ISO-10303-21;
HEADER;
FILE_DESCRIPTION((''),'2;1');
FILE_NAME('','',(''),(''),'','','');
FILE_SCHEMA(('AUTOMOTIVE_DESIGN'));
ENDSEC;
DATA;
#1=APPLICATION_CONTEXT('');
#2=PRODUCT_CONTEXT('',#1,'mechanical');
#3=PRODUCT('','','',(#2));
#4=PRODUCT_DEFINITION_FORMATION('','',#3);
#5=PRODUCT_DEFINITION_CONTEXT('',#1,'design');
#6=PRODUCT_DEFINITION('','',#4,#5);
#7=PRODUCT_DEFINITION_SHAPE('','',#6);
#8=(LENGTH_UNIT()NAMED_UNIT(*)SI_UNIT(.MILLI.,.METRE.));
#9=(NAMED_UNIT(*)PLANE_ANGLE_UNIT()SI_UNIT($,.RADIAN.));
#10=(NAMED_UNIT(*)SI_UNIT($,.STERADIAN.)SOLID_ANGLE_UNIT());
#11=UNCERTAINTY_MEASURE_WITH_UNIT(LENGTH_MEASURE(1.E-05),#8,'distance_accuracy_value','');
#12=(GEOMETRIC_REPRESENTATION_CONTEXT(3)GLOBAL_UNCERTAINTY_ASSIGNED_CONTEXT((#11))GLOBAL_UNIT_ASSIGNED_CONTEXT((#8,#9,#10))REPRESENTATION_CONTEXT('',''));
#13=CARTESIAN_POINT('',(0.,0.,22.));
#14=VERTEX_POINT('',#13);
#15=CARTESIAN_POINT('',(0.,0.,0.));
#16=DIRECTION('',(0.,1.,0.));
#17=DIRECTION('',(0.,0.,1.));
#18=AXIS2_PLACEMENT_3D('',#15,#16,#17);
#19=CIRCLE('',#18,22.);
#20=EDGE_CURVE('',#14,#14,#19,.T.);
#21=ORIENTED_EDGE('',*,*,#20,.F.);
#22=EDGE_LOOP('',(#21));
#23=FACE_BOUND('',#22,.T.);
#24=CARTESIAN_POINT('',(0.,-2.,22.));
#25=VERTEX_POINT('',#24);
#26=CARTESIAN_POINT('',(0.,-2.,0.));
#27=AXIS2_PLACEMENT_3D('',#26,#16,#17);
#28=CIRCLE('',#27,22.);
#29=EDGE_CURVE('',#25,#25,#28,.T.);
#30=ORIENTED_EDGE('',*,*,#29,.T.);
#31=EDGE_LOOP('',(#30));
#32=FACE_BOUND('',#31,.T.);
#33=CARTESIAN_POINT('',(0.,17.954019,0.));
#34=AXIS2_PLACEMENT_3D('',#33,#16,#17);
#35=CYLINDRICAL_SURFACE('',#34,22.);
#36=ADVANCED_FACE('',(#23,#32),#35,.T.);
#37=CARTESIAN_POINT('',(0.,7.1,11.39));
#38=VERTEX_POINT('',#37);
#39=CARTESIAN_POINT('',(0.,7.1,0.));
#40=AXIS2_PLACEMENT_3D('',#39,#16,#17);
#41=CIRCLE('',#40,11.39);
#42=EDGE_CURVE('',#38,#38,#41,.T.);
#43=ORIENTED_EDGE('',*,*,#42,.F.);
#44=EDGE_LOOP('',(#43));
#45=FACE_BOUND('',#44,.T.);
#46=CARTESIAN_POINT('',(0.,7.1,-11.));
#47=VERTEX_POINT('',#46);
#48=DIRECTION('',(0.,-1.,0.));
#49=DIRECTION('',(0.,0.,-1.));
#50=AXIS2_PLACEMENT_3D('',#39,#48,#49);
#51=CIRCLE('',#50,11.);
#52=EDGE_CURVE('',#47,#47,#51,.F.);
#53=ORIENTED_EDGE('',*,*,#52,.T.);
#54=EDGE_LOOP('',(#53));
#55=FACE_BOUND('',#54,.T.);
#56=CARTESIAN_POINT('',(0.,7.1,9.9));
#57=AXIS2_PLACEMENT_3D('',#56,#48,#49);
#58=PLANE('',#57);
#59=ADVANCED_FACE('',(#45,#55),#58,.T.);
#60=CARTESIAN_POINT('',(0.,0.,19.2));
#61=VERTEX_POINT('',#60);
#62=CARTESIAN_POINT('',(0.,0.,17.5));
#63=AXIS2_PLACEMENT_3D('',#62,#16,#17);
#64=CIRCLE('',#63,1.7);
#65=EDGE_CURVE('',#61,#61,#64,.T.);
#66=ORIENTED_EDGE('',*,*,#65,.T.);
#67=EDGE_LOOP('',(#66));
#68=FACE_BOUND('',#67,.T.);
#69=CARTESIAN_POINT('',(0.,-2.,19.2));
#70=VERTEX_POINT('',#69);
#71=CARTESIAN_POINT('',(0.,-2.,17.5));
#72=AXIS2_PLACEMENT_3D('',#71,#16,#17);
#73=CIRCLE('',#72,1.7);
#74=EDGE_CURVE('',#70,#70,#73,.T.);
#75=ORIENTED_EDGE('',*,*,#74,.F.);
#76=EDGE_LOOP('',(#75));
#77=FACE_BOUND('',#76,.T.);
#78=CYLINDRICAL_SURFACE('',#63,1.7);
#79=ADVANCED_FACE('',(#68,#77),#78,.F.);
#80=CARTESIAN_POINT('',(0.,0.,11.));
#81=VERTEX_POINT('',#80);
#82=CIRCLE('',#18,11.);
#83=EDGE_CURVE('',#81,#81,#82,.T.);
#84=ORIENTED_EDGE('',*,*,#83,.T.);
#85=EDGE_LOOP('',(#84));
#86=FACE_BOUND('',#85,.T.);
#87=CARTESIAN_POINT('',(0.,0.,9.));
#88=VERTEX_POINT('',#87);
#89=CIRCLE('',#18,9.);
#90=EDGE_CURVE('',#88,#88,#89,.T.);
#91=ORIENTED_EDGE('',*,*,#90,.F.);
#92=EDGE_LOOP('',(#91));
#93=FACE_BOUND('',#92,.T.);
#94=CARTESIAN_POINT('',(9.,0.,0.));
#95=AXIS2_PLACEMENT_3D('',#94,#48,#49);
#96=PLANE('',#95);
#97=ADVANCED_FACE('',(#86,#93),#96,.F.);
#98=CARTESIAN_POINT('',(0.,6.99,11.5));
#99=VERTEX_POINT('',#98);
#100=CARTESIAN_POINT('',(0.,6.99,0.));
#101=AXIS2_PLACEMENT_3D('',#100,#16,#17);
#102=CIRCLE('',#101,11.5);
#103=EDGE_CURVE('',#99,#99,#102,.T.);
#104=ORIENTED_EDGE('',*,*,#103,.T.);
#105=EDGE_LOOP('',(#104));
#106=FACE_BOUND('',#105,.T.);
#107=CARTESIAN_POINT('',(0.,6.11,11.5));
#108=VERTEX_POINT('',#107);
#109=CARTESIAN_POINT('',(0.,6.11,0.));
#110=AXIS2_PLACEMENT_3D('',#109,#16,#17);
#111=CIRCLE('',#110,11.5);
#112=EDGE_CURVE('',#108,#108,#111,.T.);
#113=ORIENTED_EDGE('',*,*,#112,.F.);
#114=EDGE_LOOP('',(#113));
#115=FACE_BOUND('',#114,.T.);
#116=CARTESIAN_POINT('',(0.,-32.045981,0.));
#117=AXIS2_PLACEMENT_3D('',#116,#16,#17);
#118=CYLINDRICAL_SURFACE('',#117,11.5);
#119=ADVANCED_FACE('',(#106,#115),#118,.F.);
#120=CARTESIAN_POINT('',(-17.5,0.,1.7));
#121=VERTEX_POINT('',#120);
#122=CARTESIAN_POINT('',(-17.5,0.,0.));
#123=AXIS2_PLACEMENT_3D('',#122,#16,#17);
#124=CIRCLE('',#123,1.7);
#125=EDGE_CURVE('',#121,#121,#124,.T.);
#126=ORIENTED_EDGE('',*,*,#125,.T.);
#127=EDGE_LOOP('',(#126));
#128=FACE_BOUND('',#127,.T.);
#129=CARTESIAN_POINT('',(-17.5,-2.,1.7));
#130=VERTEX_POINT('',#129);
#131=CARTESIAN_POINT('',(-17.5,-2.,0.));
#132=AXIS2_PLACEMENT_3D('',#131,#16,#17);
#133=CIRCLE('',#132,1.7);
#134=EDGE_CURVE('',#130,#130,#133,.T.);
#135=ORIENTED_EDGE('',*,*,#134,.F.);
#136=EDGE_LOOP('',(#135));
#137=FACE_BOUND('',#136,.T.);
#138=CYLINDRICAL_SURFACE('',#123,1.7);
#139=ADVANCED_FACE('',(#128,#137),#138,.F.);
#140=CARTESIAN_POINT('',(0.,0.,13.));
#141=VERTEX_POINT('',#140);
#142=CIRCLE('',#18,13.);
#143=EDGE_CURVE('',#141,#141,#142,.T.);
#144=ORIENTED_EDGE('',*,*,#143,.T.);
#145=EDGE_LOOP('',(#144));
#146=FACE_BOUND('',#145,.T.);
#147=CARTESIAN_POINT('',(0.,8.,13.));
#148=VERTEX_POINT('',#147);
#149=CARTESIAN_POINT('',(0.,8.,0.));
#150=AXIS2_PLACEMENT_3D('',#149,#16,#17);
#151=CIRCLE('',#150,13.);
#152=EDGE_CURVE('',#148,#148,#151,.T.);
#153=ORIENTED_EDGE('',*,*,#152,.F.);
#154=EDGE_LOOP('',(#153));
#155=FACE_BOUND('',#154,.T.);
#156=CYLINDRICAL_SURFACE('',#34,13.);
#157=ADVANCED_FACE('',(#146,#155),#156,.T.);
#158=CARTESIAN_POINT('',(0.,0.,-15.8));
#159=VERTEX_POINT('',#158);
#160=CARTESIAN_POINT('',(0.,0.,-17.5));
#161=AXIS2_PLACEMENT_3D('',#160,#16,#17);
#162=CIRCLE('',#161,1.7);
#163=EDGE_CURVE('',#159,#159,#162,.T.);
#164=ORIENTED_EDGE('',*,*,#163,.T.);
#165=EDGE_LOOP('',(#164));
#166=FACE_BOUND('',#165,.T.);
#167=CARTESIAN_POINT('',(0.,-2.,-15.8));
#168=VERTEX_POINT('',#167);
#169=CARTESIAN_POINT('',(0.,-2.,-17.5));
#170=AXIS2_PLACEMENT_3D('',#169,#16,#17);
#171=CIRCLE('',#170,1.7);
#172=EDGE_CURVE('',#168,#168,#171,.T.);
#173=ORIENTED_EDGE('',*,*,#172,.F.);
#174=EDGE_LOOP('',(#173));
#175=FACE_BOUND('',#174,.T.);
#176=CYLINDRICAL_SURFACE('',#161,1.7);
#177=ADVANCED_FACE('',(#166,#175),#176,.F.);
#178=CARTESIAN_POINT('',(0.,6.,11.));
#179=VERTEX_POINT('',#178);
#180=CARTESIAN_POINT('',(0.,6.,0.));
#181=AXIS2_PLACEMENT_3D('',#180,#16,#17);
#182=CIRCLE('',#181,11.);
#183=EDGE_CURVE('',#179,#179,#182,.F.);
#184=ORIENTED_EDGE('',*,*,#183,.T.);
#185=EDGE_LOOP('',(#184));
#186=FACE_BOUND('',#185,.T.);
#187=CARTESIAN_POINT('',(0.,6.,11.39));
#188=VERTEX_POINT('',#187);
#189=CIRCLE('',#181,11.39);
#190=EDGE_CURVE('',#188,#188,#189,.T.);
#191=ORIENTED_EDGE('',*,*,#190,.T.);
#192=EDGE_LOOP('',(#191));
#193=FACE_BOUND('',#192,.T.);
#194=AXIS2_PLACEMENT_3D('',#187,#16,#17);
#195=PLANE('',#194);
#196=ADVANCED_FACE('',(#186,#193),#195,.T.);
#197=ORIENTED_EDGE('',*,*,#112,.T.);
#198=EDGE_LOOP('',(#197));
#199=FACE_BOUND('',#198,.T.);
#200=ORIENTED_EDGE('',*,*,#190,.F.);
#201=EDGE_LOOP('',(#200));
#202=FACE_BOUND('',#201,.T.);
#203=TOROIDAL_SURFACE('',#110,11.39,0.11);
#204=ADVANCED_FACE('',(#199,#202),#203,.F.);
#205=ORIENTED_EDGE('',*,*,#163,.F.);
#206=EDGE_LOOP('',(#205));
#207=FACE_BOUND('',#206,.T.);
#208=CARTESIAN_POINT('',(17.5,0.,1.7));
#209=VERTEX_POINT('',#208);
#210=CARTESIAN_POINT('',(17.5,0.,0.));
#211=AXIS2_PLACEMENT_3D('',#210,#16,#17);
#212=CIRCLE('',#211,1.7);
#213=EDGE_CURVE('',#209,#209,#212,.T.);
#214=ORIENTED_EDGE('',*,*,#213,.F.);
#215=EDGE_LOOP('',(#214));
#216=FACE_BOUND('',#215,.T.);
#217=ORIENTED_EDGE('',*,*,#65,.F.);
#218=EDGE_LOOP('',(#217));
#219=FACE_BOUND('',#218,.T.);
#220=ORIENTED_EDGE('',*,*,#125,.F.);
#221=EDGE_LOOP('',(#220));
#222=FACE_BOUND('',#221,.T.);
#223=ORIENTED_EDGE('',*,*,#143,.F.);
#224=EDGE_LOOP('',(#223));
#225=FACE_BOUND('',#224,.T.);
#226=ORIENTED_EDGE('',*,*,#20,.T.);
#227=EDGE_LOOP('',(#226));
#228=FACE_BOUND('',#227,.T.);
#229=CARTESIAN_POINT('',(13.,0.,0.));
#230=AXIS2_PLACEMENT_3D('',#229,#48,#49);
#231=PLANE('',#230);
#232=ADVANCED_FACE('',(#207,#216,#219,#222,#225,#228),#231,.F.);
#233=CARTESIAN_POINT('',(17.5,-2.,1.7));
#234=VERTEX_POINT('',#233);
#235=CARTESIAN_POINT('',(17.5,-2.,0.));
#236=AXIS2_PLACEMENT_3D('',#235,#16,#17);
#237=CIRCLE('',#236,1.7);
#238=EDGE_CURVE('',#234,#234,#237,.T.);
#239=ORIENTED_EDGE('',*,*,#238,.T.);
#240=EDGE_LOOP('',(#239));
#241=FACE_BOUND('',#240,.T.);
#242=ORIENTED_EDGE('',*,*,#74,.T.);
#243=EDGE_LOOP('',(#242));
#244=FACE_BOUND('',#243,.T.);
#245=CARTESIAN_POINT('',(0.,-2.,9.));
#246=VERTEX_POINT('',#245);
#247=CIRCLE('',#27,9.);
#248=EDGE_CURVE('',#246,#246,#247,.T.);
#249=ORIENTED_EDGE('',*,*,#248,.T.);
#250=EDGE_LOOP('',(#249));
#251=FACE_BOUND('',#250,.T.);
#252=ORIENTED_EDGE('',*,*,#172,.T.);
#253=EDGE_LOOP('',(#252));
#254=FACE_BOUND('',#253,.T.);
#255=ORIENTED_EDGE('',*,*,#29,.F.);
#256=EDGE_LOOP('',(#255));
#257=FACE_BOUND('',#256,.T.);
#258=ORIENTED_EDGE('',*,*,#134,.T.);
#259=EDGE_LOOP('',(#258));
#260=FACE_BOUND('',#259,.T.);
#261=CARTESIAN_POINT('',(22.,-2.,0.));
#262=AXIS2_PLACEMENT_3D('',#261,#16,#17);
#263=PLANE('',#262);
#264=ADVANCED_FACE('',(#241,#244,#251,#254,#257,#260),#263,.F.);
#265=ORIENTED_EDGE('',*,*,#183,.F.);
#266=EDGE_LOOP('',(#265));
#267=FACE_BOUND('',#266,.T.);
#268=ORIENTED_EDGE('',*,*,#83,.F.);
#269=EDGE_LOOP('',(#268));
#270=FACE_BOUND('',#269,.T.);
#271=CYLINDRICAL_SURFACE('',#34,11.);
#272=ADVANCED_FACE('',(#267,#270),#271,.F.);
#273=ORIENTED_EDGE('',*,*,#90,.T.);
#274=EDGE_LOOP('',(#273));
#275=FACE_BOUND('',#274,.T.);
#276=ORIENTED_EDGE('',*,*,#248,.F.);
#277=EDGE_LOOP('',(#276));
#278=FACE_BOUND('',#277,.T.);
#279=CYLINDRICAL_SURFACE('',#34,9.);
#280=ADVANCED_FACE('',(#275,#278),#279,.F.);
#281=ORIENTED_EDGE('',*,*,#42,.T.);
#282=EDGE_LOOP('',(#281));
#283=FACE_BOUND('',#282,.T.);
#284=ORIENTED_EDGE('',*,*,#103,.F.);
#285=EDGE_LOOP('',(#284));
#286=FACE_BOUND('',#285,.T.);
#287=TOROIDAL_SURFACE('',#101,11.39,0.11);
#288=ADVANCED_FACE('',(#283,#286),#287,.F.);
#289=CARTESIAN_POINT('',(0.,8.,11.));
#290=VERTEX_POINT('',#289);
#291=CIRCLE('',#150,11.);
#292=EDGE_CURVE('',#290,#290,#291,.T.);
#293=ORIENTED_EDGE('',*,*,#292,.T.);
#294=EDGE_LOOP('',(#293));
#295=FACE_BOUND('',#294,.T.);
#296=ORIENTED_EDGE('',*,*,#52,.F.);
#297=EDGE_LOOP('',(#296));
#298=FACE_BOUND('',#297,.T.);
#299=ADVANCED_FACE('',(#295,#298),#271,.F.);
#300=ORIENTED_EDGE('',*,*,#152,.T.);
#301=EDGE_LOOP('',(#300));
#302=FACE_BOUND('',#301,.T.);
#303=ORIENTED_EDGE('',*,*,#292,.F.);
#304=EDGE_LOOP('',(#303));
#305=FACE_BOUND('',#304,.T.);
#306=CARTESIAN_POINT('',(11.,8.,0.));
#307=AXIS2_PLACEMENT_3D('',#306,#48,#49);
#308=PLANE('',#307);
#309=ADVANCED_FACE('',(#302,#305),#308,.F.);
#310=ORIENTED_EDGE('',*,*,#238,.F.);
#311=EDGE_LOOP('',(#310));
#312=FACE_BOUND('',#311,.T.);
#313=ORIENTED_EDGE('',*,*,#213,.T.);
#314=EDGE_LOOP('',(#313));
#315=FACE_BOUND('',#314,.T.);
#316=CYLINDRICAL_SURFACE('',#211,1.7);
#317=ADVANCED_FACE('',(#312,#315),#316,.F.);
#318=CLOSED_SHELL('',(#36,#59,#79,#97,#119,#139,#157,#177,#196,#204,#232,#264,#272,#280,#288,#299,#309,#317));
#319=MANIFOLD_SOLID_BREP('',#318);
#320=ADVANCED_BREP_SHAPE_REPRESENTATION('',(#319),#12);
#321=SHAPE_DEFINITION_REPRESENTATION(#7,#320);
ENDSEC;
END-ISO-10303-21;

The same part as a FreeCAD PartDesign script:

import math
import FreeCAD as App
import Part
import Sketcher

V = App.Vector
Q = App.Units.Quantity

doc = App.newDocument("Part")
body = doc.addObject("PartDesign::Body", "Body")

sketch1 = body.newObject("Sketcher::SketchObject", "Sketch")
sketch1.AttachmentSupport = (doc.getObject("XY_Plane"), [""])
sketch1.MapMode = "FlatFace"
sketch1.addGeometry([
    Part.LineSegment(V(11, 0, 0), V(9, 0, 0)),
    Part.LineSegment(V(9, 0, 0), V(9, -2, 0)),
    Part.LineSegment(V(9, -2, 0), V(22, -2, 0)),
    Part.LineSegment(V(22, -2, 0), V(22, 0, 0)),
    Part.LineSegment(V(22, 0, 0), V(13, 0, 0)),
    Part.LineSegment(V(13, 0, 0), V(13, 8, 0)),
    Part.LineSegment(V(13, 8, 0), V(11, 8, 0)),
    Part.LineSegment(V(11, 8, 0), V(11, 0, 0)),
], False)
sketch1.addConstraint([
    Sketcher.Constraint("Coincident", 0, 2, 1, 1),
    Sketcher.Constraint("Coincident", 1, 2, 2, 1),
    Sketcher.Constraint("Coincident", 2, 2, 3, 1),
    Sketcher.Constraint("Coincident", 3, 2, 4, 1),
    Sketcher.Constraint("Coincident", 4, 2, 5, 1),
    Sketcher.Constraint("Coincident", 5, 2, 6, 1),
    Sketcher.Constraint("Coincident", 6, 2, 7, 1),
    Sketcher.Constraint("Coincident", 7, 2, 0, 1),
    Sketcher.Constraint("Horizontal", 0),
    Sketcher.Constraint("Vertical", 1),
    Sketcher.Constraint("Horizontal", 2),
    Sketcher.Constraint("Vertical", 3),
    Sketcher.Constraint("Horizontal", 4),
    Sketcher.Constraint("Vertical", 5),
    Sketcher.Constraint("Horizontal", 6),
    Sketcher.Constraint("Vertical", 7),
    Sketcher.Constraint("PointOnObject", 0, 2, -1),
    Sketcher.Constraint("PointOnObject", 3, 2, -1),
    Sketcher.Constraint("Equal", 0, 6),
    Sketcher.Constraint("Equal", 6, 1),
    Sketcher.Constraint("DistanceX", 0, 2, 0, 1, Q("2 mm")),
    Sketcher.Constraint("DistanceX", 2, 1, 2, 2, Q("13 mm")),
    Sketcher.Constraint("DistanceY", 5, 1, 5, 2, Q("8 mm")),
    Sketcher.Constraint("DistanceX", -1, 1, 0, 2, Q("9 mm")),
])
revolution = body.newObject("PartDesign::Revolution", "Revolution")
revolution.Profile = sketch1
revolution.ReferenceAxis = (sketch1, ["V_Axis"])
revolution.Angle = 360

sketch2 = body.newObject("Sketcher::SketchObject", "Sketch001")
sketch2.AttachmentSupport = (doc.getObject("YZ_Plane"), [""])
sketch2.MapMode = "FlatFace"
sketch2.addGeometry([
    Part.LineSegment(V(6, 9.9, 0), V(6, 11.39, 0)),
    Part.ArcOfCircle(Part.Circle(V(6.11, 11.39, 0), V(0, 0, 1), 0.11), math.radians(90), math.radians(180)),
    Part.LineSegment(V(6.11, 11.5, 0), V(6.99, 11.5, 0)),
    Part.ArcOfCircle(Part.Circle(V(6.99, 11.39, 0), V(0, 0, 1), 0.11), math.radians(0), math.radians(90)),
    Part.LineSegment(V(7.1, 11.39, 0), V(7.1, 9.9, 0)),
    Part.LineSegment(V(7.1, 9.9, 0), V(6, 9.9, 0)),
], False)
sketch2.addConstraint([
    Sketcher.Constraint("Tangent", 0, 2, 1, 2),
    Sketcher.Constraint("Tangent", 1, 1, 2, 1),
    Sketcher.Constraint("Tangent", 2, 2, 3, 2),
    Sketcher.Constraint("Tangent", 3, 1, 4, 1),
    Sketcher.Constraint("Coincident", 4, 2, 5, 1),
    Sketcher.Constraint("Coincident", 5, 2, 0, 1),
    Sketcher.Constraint("Vertical", 0),
    Sketcher.Constraint("Horizontal", 2),
    Sketcher.Constraint("Vertical", 4),
    Sketcher.Constraint("Horizontal", 5),
    Sketcher.Constraint("Equal", 1, 3),
    Sketcher.Constraint("Radius", 1, Q("0.11 mm")),
    Sketcher.Constraint("DistanceX", 5, 2, 5, 1, Q("1.1 mm")),
    Sketcher.Constraint("DistanceX", -1, 1, 0, 2, Q("6 mm")),
    Sketcher.Constraint("DistanceY", 0, 1, 0, 2, Q("1.49 mm")),
    Sketcher.Constraint("DistanceY", -1, 1, 1, 1, Q("11.5 mm")),
])
groove = body.newObject("PartDesign::Groove", "Groove")
groove.Profile = sketch2
groove.ReferenceAxis = (sketch2, ["H_Axis"])
groove.Angle = 360

sketch3 = body.newObject("Sketcher::SketchObject", "Sketch002")
sketch3.AttachmentSupport = (doc.getObject("XZ_Plane"), [""])
sketch3.MapMode = "FlatFace"
sketch3.addGeometry([
    Part.Circle(V(0, -17.5, 0), V(0, 0, 1), 1.7),
    Part.Circle(V(17.5, 0, 0), V(0, 0, 1), 1.7),
    Part.Circle(V(0, 17.5, 0), V(0, 0, 1), 1.7),
    Part.Circle(V(-17.5, 0, 0), V(0, 0, 1), 1.7),
], False)
sketch3.addConstraint([
    Sketcher.Constraint("Equal", 0, 1),
    Sketcher.Constraint("Equal", 1, 2),
    Sketcher.Constraint("Equal", 2, 3),
    Sketcher.Constraint("Symmetric", 0, 3, 2, 3, -1, 1),
    Sketcher.Constraint("Symmetric", 1, 3, 3, 3, -1, 1),
    Sketcher.Constraint("PointOnObject", 0, 3, -2),
    Sketcher.Constraint("PointOnObject", 1, 3, -1),
    Sketcher.Constraint("Diameter", 0, Q("3.4 mm")),
    Sketcher.Constraint("DistanceY", 0, 3, 2, 3, Q("35 mm")),
    Sketcher.Constraint("DistanceX", 3, 3, 1, 3, Q("35 mm")),
])
doc.recompute()
hole = body.newObject("PartDesign::Hole", "Hole")
hole.Profile = sketch3
hole.ThreadType = "None"
hole.Diameter = 3.4
hole.DepthType = "ThroughAll"
hole.Reversed = True

doc.recompute()
